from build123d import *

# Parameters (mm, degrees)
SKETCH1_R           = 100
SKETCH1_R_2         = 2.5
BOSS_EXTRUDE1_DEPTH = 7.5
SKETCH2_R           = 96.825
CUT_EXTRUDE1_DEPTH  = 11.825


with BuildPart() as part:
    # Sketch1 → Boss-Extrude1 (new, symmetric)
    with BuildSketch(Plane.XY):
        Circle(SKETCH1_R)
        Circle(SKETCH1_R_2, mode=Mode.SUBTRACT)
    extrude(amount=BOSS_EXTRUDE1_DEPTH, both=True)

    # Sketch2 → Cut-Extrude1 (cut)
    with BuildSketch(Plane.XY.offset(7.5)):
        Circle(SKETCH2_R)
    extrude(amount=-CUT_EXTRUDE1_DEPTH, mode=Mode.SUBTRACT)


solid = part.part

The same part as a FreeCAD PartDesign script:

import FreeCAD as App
import Part
import Sketcher

V = App.Vector

doc = App.newDocument("Part")
body = doc.addObject("PartDesign::Body", "Body")

# Sketch on XY plane
sketch1 = body.newObject("Sketcher::SketchObject", "Sketch")
sketch1.AttachmentSupport = (doc.getObject("XY_Plane"), [""])
sketch1.MapMode = "FlatFace"
sketch1.addGeometry(Part.Circle(V(0, 0, 0), V(0, 0, 1), 100), False)
sketch1.addGeometry(Part.Circle(V(0, 0, 0), V(0, 0, 1), 2.5), False)
sketch1.addConstraint(Sketcher.Constraint("Coincident", 0, 3, -1, 1))
sketch1.addConstraint(Sketcher.Constraint("Coincident", 1, 3, -1, 1))
sketch1.addConstraint(Sketcher.Constraint("Diameter", 0, 200.0))
sketch1.addConstraint(Sketcher.Constraint("Diameter", 1, 5.0))
pad1 = body.newObject("PartDesign::Pad", "Pad")
pad1.Profile = sketch1
pad1.Length = 15
pad1.Midplane = True

# Sketch on XY plane
sketch2 = body.newObject("Sketcher::SketchObject", "Sketch001")
sketch2.AttachmentSupport = (doc.getObject("XY_Plane"), [""])
sketch2.MapMode = "FlatFace"
sketch2.AttachmentOffset = App.Placement(V(0, 0, 7.5), App.Rotation())
sketch2.addGeometry(Part.Circle(V(0, 0, 0), V(0, 0, 1), 97), False)
sketch2.addConstraint(Sketcher.Constraint("Coincident", 0, 3, -1, 1))
sketch2.addConstraint(Sketcher.Constraint("Diameter", 0, 193.65))
pocket1 = body.newObject("PartDesign::Pocket", "Pocket")
pocket1.Profile = sketch2
pocket1.Length = 11.825

doc.recompute()
